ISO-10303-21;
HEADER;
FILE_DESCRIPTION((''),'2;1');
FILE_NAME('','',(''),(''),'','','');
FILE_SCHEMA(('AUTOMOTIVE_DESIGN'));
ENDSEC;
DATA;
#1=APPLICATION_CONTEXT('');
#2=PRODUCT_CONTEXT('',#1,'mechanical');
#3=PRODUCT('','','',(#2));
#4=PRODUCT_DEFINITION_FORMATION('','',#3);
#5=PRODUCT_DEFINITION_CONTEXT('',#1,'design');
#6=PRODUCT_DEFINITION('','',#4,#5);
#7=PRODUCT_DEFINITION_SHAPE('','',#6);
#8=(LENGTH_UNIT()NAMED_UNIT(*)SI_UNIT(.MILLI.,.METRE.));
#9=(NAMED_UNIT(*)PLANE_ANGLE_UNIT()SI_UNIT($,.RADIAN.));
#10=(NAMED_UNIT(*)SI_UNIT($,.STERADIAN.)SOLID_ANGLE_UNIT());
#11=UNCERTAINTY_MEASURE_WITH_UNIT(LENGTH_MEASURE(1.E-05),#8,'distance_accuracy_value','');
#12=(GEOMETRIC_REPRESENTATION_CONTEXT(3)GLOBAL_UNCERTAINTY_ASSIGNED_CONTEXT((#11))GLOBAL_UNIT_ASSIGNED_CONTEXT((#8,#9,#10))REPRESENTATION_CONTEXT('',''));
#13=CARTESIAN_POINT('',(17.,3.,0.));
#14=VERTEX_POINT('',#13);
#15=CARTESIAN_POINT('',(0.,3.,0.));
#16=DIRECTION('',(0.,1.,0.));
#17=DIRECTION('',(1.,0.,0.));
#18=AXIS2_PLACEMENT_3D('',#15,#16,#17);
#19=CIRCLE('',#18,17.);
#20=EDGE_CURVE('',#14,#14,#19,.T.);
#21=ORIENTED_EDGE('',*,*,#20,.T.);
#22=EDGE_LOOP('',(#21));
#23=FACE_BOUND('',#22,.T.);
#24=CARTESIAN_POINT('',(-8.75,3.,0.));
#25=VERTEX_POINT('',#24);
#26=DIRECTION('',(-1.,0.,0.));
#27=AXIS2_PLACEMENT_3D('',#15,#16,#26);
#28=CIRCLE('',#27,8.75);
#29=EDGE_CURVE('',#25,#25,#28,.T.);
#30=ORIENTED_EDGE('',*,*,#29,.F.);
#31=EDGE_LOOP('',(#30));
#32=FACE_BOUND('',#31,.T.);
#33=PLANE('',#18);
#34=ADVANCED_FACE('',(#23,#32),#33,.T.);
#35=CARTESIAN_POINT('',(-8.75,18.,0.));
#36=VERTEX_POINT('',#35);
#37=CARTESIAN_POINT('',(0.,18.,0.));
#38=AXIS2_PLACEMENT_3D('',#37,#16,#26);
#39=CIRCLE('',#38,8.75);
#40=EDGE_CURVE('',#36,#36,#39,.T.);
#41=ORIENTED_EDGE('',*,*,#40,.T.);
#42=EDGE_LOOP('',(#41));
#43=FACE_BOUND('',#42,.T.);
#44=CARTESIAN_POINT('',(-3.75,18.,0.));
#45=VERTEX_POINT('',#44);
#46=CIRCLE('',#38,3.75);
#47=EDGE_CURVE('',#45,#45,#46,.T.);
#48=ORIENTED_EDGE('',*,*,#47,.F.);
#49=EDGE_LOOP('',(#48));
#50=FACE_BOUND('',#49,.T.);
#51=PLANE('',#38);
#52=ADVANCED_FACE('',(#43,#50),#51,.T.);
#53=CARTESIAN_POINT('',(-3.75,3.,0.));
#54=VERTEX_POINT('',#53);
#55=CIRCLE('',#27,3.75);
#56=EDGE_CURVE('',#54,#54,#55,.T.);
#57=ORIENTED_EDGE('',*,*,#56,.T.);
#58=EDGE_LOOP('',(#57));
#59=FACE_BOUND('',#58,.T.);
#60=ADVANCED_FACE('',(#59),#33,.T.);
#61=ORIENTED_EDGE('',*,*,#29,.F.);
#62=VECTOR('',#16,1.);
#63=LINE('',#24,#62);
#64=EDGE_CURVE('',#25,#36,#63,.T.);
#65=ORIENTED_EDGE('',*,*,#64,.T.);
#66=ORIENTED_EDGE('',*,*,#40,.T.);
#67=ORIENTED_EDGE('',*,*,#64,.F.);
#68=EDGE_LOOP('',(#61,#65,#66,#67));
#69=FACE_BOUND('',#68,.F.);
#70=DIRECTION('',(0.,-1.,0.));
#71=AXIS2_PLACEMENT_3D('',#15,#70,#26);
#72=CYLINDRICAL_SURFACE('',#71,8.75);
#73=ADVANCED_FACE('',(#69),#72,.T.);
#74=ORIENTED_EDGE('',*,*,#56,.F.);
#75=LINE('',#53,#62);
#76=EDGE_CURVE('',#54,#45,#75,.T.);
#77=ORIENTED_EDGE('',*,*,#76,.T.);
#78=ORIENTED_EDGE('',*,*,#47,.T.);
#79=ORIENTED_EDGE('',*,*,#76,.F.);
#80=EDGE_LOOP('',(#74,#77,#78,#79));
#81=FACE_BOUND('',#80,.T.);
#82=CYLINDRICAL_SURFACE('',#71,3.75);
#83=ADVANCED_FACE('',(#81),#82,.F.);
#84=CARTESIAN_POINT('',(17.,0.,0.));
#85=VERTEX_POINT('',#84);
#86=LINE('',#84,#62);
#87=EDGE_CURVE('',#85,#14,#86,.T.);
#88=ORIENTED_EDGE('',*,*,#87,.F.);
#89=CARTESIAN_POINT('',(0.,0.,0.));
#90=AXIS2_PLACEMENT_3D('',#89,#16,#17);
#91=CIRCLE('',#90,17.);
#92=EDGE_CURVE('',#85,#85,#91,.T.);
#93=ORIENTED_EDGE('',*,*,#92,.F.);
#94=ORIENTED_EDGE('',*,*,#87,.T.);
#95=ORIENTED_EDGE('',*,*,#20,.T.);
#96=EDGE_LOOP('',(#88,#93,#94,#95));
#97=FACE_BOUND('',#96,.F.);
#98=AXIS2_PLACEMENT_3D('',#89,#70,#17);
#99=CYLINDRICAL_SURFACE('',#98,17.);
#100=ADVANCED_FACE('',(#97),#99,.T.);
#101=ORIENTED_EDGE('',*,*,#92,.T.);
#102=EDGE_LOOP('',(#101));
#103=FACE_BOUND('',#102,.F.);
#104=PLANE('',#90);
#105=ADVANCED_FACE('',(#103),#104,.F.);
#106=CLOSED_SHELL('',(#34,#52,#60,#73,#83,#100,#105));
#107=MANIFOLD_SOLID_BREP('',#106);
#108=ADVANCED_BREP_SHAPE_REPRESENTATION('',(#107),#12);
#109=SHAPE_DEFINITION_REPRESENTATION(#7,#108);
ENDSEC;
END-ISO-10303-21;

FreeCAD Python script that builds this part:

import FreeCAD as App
import Part
import Sketcher
from FreeCAD import Vector
Q = App.Units.Quantity

doc = App.newDocument("Part")
body = doc.addObject("PartDesign::Body", "Body")

# Sketch on XZ plane
sketch1 = body.newObject("Sketcher::SketchObject", "Sketch")
sketch1.AttachmentSupport = (doc.getObject("XZ_Plane"), [""])
sketch1.MapMode = "FlatFace"
sketch1.addGeometry(Part.Circle(Vector(0, 0, 0), Vector(0, 0, 1), 17), False)
sketch1.addConstraint(Sketcher.Constraint("Coincident", 0, 3, -1, 1))
sketch1.addConstraint(Sketcher.Constraint("Diameter", 0, Q("34 mm")))
pad1 = body.newObject("PartDesign::Pad", "Pad")
pad1.Profile = sketch1
pad1.Length = 3
pad1.Reversed = True

# Sketch on XZ plane
sketch2 = body.newObject("Sketcher::SketchObject", "Sketch001")
sketch2.AttachmentSupport = (doc.getObject("XZ_Plane"), [""])
sketch2.MapMode = "FlatFace"
sketch2.AttachmentOffset = App.Placement(Vector(0, 0, -3), App.Rotation())
sketch2.addGeometry(Part.Circle(Vector(0, 0, 0), Vector(0, 0, 1), 8.8), False)
sketch2.addGeometry(Part.Circle(Vector(0, 0, 0), Vector(0, 0, 1), 3.8), False)
sketch2.addConstraint(Sketcher.Constraint("Coincident", 0, 3, -1, 1))
sketch2.addConstraint(Sketcher.Constraint("Coincident", 1, 3, -1, 1))
sketch2.addConstraint(Sketcher.Constraint("Diameter", 1, Q("7.5 mm")))
sketch2.addConstraint(Sketcher.Constraint("Diameter", 0, Q("17.5 mm")))
pad2 = body.newObject("PartDesign::Pad", "Pad001")
pad2.Profile = sketch2
pad2.Length = 15
pad2.Reversed = True

doc.recompute()
